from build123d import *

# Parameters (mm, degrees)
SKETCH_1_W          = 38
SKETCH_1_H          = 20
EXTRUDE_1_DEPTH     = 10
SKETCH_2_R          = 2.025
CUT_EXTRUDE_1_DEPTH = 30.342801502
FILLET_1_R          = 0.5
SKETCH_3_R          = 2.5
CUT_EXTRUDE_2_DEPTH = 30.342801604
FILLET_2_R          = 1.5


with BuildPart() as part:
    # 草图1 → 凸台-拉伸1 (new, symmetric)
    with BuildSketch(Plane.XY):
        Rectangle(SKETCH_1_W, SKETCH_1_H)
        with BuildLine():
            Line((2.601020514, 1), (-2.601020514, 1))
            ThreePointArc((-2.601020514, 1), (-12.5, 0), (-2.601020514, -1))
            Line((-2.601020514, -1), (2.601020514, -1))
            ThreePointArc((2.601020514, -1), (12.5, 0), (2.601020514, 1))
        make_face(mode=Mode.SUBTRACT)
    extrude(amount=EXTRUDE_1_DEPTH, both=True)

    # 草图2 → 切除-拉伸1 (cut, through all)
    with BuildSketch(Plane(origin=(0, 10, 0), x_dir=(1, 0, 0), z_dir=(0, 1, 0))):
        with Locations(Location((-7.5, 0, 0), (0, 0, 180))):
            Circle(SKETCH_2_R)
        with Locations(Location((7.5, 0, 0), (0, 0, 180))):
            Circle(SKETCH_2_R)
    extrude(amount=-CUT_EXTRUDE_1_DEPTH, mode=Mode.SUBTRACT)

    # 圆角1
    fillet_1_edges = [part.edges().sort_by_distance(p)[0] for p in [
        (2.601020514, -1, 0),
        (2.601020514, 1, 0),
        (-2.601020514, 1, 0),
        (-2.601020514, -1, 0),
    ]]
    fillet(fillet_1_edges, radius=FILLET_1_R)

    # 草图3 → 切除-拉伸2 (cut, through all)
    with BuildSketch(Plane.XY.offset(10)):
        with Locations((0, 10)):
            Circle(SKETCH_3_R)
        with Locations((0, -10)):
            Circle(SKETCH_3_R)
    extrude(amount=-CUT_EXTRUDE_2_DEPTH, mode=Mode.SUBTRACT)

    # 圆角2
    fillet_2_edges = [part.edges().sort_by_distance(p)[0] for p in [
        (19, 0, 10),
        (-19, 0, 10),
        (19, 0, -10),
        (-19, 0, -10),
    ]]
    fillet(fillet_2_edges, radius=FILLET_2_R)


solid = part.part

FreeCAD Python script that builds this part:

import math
import FreeCAD as App
import Part
import Sketcher

V = App.Vector
Q = App.Units.Quantity


def edges_at(feature, points):
    """Names of the edges that pass closest to the given points."""
    edges = feature.Shape.Edges
    near = lambda p: min(range(len(edges)), key=lambda i: edges[i].distToShape(Part.Vertex(*p))[0])
    return sorted({f"Edge{near(p) + 1}" for p in points})


def add_polygon(sketch, points):
    """Adds a closed chain of lines whose ends are joined by coincident constraints."""
    first, n = sketch.GeometryCount, len(points)
    for a, b in zip(points, points[1:] + points[:1]):
        sketch.addGeometry(Part.LineSegment(App.Vector(*a, 0), App.Vector(*b, 0)), False)
    for i in range(n):
        sketch.addConstraint(Sketcher.Constraint("Coincident", first + i, 2, first + (i + 1) % n, 1))

doc = App.newDocument("Part")
body = doc.addObject("PartDesign::Body", "Body")

sketch1 = doc.addObject("Sketcher::SketchObject", "Sketch")
body.addObject(sketch1)
sketch1.AttachmentSupport = (doc.XY_Plane, [""])
sketch1.MapMode = "FlatFace"
add_polygon(sketch1, [(-19, 10), (-19, -10), (19, -10), (19, 10)])
sketch1.addGeometry(Part.LineSegment(V(-2.601021, 1, 0), V(2.601021, 1, 0)), False)
sketch1.addGeometry(Part.ArcOfCircle(Part.Circle(V(7.5, 0, 0), V(0, 0, 1), 5), math.radians(-168.463041), math.radians(168.463041)), False)
sketch1.addGeometry(Part.LineSegment(V(2.601021, -1, 0), V(-2.601021, -1, 0)), False)
sketch1.addGeometry(Part.ArcOfCircle(Part.Circle(V(-7.5, 0, 0), V(0, 0, 1), 5), math.radians(11.536959), math.radians(348.463041)), False)
sketch1.addConstraint([
    Sketcher.Constraint("Coincident", 4, 2, 5, 2),
    Sketcher.Constraint("Coincident", 5, 1, 6, 1),
    Sketcher.Constraint("Coincident", 6, 2, 7, 2),
    Sketcher.Constraint("Coincident", 7, 1, 4, 1),
    Sketcher.Constraint("Vertical", 0),
    Sketcher.Constraint("Horizontal", 1),
    Sketcher.Constraint("Vertical", 2),
    Sketcher.Constraint("Horizontal", 3),
    Sketcher.Constraint("Horizontal", 4),
    Sketcher.Constraint("Horizontal", 6),
    Sketcher.Constraint("Equal", 5, 7),
    Sketcher.Constraint("Symmetric", 5, 3, 7, 3, -1, 1),
    Sketcher.Constraint("Symmetric", 0, 2, 2, 2, -1, 1),
    Sketcher.Constraint("Symmetric", 4, 2, 5, 1, -1),
    Sketcher.Constraint("Radius", 5, Q("5 mm")),
    Sketcher.Constraint("DistanceX", 1, 1, 1, 2, Q("38 mm")),
    Sketcher.Constraint("DistanceY", 0, 2, 0, 1, Q("20 mm")),
    Sketcher.Constraint("DistanceY", -1, 1, 4, 2, Q("1 mm")),
    Sketcher.Constraint("DistanceX", 7, 3, 5, 3, Q("15 mm")),
])
pad1 = doc.addObject("PartDesign::Pad", "Pad")
body.addObject(pad1)
pad1.Profile = sketch1
pad1.Length = 20
pad1.Midplane = True

sketch2 = doc.addObject("Sketcher::SketchObject", "Sketch001")
body.addObject(sketch2)
sketch2.AttachmentSupport = (doc.XZ_Plane, [""])
sketch2.MapMode = "FlatFace"
sketch2.AttachmentOffset = App.Placement(V(0, 0, -10), App.Rotation())
sketch2.addGeometry([
    Part.Circle(V(-7.5, 0, 0), V(0, 0, 1), 2.025),
    Part.Circle(V(7.5, 0, 0), V(0, 0, 1), 2.025),
], False)
sketch2.addConstraint([
    Sketcher.Constraint("Equal", 0, 1),
    Sketcher.Constraint("Symmetric", 0, 3, 1, 3, -1, 1),
    Sketcher.Constraint("PointOnObject", 0, 3, -1),
    Sketcher.Constraint("Diameter", 0, Q("4.05 mm")),
    Sketcher.Constraint("DistanceX", 0, 3, 1, 3, Q("15 mm")),
])
pocket1 = doc.addObject("PartDesign::Pocket", "Pocket")
body.addObject(pocket1)
pocket1.Profile = sketch2
pocket1.Type = "ThroughAll"
pocket1.Reversed = True
doc.recompute()

fillet = doc.addObject("PartDesign::Fillet", "Fillet")
body.addObject(fillet)
fillet.Base = (pocket1, edges_at(pocket1, [
    (2.601, -1, 0),
    (2.601, 1, 0),
    (-2.601, 1, 0),
    (-2.601, -1, 0),
]))
fillet.Radius = 0.5

sketch3 = doc.addObject("Sketcher::SketchObject", "Sketch002")
body.addObject(sketch3)
sketch3.AttachmentSupport = (doc.XY_Plane, [""])
sketch3.MapMode = "FlatFace"
sketch3.AttachmentOffset = App.Placement(V(0, 0, 10), App.Rotation())
sketch3.addGeometry([
    Part.Circle(V(0, 10, 0), V(0, 0, 1), 2.5),
    Part.Circle(V(0, -10, 0), V(0, 0, 1), 2.5),
], False)
sketch3.addConstraint([
    Sketcher.Constraint("Equal", 0, 1),
    Sketcher.Constraint("Symmetric", 0, 3, 1, 3, -1, 1),
    Sketcher.Constraint("PointOnObject", 0, 3, -2),
    Sketcher.Constraint("Diameter", 0, Q("5 mm")),
    Sketcher.Constraint("DistanceY", -1, 1, 0, 3, Q("10 mm")),
])
pocket2 = doc.addObject("PartDesign::Pocket", "Pocket001")
body.addObject(pocket2)
pocket2.Profile = sketch3
pocket2.Type = "ThroughAll"
doc.recompute()

fillet2 = doc.addObject("PartDesign::Fillet", "Fillet001")
body.addObject(fillet2)
fillet2.Base = (pocket2, edges_at(pocket2, [
    (19, 0, 10),
    (-19, 0, 10),
    (19, 0, -10),
    (-19, 0, -10),
]))
fillet2.Radius = 1.5

doc.recompute()
